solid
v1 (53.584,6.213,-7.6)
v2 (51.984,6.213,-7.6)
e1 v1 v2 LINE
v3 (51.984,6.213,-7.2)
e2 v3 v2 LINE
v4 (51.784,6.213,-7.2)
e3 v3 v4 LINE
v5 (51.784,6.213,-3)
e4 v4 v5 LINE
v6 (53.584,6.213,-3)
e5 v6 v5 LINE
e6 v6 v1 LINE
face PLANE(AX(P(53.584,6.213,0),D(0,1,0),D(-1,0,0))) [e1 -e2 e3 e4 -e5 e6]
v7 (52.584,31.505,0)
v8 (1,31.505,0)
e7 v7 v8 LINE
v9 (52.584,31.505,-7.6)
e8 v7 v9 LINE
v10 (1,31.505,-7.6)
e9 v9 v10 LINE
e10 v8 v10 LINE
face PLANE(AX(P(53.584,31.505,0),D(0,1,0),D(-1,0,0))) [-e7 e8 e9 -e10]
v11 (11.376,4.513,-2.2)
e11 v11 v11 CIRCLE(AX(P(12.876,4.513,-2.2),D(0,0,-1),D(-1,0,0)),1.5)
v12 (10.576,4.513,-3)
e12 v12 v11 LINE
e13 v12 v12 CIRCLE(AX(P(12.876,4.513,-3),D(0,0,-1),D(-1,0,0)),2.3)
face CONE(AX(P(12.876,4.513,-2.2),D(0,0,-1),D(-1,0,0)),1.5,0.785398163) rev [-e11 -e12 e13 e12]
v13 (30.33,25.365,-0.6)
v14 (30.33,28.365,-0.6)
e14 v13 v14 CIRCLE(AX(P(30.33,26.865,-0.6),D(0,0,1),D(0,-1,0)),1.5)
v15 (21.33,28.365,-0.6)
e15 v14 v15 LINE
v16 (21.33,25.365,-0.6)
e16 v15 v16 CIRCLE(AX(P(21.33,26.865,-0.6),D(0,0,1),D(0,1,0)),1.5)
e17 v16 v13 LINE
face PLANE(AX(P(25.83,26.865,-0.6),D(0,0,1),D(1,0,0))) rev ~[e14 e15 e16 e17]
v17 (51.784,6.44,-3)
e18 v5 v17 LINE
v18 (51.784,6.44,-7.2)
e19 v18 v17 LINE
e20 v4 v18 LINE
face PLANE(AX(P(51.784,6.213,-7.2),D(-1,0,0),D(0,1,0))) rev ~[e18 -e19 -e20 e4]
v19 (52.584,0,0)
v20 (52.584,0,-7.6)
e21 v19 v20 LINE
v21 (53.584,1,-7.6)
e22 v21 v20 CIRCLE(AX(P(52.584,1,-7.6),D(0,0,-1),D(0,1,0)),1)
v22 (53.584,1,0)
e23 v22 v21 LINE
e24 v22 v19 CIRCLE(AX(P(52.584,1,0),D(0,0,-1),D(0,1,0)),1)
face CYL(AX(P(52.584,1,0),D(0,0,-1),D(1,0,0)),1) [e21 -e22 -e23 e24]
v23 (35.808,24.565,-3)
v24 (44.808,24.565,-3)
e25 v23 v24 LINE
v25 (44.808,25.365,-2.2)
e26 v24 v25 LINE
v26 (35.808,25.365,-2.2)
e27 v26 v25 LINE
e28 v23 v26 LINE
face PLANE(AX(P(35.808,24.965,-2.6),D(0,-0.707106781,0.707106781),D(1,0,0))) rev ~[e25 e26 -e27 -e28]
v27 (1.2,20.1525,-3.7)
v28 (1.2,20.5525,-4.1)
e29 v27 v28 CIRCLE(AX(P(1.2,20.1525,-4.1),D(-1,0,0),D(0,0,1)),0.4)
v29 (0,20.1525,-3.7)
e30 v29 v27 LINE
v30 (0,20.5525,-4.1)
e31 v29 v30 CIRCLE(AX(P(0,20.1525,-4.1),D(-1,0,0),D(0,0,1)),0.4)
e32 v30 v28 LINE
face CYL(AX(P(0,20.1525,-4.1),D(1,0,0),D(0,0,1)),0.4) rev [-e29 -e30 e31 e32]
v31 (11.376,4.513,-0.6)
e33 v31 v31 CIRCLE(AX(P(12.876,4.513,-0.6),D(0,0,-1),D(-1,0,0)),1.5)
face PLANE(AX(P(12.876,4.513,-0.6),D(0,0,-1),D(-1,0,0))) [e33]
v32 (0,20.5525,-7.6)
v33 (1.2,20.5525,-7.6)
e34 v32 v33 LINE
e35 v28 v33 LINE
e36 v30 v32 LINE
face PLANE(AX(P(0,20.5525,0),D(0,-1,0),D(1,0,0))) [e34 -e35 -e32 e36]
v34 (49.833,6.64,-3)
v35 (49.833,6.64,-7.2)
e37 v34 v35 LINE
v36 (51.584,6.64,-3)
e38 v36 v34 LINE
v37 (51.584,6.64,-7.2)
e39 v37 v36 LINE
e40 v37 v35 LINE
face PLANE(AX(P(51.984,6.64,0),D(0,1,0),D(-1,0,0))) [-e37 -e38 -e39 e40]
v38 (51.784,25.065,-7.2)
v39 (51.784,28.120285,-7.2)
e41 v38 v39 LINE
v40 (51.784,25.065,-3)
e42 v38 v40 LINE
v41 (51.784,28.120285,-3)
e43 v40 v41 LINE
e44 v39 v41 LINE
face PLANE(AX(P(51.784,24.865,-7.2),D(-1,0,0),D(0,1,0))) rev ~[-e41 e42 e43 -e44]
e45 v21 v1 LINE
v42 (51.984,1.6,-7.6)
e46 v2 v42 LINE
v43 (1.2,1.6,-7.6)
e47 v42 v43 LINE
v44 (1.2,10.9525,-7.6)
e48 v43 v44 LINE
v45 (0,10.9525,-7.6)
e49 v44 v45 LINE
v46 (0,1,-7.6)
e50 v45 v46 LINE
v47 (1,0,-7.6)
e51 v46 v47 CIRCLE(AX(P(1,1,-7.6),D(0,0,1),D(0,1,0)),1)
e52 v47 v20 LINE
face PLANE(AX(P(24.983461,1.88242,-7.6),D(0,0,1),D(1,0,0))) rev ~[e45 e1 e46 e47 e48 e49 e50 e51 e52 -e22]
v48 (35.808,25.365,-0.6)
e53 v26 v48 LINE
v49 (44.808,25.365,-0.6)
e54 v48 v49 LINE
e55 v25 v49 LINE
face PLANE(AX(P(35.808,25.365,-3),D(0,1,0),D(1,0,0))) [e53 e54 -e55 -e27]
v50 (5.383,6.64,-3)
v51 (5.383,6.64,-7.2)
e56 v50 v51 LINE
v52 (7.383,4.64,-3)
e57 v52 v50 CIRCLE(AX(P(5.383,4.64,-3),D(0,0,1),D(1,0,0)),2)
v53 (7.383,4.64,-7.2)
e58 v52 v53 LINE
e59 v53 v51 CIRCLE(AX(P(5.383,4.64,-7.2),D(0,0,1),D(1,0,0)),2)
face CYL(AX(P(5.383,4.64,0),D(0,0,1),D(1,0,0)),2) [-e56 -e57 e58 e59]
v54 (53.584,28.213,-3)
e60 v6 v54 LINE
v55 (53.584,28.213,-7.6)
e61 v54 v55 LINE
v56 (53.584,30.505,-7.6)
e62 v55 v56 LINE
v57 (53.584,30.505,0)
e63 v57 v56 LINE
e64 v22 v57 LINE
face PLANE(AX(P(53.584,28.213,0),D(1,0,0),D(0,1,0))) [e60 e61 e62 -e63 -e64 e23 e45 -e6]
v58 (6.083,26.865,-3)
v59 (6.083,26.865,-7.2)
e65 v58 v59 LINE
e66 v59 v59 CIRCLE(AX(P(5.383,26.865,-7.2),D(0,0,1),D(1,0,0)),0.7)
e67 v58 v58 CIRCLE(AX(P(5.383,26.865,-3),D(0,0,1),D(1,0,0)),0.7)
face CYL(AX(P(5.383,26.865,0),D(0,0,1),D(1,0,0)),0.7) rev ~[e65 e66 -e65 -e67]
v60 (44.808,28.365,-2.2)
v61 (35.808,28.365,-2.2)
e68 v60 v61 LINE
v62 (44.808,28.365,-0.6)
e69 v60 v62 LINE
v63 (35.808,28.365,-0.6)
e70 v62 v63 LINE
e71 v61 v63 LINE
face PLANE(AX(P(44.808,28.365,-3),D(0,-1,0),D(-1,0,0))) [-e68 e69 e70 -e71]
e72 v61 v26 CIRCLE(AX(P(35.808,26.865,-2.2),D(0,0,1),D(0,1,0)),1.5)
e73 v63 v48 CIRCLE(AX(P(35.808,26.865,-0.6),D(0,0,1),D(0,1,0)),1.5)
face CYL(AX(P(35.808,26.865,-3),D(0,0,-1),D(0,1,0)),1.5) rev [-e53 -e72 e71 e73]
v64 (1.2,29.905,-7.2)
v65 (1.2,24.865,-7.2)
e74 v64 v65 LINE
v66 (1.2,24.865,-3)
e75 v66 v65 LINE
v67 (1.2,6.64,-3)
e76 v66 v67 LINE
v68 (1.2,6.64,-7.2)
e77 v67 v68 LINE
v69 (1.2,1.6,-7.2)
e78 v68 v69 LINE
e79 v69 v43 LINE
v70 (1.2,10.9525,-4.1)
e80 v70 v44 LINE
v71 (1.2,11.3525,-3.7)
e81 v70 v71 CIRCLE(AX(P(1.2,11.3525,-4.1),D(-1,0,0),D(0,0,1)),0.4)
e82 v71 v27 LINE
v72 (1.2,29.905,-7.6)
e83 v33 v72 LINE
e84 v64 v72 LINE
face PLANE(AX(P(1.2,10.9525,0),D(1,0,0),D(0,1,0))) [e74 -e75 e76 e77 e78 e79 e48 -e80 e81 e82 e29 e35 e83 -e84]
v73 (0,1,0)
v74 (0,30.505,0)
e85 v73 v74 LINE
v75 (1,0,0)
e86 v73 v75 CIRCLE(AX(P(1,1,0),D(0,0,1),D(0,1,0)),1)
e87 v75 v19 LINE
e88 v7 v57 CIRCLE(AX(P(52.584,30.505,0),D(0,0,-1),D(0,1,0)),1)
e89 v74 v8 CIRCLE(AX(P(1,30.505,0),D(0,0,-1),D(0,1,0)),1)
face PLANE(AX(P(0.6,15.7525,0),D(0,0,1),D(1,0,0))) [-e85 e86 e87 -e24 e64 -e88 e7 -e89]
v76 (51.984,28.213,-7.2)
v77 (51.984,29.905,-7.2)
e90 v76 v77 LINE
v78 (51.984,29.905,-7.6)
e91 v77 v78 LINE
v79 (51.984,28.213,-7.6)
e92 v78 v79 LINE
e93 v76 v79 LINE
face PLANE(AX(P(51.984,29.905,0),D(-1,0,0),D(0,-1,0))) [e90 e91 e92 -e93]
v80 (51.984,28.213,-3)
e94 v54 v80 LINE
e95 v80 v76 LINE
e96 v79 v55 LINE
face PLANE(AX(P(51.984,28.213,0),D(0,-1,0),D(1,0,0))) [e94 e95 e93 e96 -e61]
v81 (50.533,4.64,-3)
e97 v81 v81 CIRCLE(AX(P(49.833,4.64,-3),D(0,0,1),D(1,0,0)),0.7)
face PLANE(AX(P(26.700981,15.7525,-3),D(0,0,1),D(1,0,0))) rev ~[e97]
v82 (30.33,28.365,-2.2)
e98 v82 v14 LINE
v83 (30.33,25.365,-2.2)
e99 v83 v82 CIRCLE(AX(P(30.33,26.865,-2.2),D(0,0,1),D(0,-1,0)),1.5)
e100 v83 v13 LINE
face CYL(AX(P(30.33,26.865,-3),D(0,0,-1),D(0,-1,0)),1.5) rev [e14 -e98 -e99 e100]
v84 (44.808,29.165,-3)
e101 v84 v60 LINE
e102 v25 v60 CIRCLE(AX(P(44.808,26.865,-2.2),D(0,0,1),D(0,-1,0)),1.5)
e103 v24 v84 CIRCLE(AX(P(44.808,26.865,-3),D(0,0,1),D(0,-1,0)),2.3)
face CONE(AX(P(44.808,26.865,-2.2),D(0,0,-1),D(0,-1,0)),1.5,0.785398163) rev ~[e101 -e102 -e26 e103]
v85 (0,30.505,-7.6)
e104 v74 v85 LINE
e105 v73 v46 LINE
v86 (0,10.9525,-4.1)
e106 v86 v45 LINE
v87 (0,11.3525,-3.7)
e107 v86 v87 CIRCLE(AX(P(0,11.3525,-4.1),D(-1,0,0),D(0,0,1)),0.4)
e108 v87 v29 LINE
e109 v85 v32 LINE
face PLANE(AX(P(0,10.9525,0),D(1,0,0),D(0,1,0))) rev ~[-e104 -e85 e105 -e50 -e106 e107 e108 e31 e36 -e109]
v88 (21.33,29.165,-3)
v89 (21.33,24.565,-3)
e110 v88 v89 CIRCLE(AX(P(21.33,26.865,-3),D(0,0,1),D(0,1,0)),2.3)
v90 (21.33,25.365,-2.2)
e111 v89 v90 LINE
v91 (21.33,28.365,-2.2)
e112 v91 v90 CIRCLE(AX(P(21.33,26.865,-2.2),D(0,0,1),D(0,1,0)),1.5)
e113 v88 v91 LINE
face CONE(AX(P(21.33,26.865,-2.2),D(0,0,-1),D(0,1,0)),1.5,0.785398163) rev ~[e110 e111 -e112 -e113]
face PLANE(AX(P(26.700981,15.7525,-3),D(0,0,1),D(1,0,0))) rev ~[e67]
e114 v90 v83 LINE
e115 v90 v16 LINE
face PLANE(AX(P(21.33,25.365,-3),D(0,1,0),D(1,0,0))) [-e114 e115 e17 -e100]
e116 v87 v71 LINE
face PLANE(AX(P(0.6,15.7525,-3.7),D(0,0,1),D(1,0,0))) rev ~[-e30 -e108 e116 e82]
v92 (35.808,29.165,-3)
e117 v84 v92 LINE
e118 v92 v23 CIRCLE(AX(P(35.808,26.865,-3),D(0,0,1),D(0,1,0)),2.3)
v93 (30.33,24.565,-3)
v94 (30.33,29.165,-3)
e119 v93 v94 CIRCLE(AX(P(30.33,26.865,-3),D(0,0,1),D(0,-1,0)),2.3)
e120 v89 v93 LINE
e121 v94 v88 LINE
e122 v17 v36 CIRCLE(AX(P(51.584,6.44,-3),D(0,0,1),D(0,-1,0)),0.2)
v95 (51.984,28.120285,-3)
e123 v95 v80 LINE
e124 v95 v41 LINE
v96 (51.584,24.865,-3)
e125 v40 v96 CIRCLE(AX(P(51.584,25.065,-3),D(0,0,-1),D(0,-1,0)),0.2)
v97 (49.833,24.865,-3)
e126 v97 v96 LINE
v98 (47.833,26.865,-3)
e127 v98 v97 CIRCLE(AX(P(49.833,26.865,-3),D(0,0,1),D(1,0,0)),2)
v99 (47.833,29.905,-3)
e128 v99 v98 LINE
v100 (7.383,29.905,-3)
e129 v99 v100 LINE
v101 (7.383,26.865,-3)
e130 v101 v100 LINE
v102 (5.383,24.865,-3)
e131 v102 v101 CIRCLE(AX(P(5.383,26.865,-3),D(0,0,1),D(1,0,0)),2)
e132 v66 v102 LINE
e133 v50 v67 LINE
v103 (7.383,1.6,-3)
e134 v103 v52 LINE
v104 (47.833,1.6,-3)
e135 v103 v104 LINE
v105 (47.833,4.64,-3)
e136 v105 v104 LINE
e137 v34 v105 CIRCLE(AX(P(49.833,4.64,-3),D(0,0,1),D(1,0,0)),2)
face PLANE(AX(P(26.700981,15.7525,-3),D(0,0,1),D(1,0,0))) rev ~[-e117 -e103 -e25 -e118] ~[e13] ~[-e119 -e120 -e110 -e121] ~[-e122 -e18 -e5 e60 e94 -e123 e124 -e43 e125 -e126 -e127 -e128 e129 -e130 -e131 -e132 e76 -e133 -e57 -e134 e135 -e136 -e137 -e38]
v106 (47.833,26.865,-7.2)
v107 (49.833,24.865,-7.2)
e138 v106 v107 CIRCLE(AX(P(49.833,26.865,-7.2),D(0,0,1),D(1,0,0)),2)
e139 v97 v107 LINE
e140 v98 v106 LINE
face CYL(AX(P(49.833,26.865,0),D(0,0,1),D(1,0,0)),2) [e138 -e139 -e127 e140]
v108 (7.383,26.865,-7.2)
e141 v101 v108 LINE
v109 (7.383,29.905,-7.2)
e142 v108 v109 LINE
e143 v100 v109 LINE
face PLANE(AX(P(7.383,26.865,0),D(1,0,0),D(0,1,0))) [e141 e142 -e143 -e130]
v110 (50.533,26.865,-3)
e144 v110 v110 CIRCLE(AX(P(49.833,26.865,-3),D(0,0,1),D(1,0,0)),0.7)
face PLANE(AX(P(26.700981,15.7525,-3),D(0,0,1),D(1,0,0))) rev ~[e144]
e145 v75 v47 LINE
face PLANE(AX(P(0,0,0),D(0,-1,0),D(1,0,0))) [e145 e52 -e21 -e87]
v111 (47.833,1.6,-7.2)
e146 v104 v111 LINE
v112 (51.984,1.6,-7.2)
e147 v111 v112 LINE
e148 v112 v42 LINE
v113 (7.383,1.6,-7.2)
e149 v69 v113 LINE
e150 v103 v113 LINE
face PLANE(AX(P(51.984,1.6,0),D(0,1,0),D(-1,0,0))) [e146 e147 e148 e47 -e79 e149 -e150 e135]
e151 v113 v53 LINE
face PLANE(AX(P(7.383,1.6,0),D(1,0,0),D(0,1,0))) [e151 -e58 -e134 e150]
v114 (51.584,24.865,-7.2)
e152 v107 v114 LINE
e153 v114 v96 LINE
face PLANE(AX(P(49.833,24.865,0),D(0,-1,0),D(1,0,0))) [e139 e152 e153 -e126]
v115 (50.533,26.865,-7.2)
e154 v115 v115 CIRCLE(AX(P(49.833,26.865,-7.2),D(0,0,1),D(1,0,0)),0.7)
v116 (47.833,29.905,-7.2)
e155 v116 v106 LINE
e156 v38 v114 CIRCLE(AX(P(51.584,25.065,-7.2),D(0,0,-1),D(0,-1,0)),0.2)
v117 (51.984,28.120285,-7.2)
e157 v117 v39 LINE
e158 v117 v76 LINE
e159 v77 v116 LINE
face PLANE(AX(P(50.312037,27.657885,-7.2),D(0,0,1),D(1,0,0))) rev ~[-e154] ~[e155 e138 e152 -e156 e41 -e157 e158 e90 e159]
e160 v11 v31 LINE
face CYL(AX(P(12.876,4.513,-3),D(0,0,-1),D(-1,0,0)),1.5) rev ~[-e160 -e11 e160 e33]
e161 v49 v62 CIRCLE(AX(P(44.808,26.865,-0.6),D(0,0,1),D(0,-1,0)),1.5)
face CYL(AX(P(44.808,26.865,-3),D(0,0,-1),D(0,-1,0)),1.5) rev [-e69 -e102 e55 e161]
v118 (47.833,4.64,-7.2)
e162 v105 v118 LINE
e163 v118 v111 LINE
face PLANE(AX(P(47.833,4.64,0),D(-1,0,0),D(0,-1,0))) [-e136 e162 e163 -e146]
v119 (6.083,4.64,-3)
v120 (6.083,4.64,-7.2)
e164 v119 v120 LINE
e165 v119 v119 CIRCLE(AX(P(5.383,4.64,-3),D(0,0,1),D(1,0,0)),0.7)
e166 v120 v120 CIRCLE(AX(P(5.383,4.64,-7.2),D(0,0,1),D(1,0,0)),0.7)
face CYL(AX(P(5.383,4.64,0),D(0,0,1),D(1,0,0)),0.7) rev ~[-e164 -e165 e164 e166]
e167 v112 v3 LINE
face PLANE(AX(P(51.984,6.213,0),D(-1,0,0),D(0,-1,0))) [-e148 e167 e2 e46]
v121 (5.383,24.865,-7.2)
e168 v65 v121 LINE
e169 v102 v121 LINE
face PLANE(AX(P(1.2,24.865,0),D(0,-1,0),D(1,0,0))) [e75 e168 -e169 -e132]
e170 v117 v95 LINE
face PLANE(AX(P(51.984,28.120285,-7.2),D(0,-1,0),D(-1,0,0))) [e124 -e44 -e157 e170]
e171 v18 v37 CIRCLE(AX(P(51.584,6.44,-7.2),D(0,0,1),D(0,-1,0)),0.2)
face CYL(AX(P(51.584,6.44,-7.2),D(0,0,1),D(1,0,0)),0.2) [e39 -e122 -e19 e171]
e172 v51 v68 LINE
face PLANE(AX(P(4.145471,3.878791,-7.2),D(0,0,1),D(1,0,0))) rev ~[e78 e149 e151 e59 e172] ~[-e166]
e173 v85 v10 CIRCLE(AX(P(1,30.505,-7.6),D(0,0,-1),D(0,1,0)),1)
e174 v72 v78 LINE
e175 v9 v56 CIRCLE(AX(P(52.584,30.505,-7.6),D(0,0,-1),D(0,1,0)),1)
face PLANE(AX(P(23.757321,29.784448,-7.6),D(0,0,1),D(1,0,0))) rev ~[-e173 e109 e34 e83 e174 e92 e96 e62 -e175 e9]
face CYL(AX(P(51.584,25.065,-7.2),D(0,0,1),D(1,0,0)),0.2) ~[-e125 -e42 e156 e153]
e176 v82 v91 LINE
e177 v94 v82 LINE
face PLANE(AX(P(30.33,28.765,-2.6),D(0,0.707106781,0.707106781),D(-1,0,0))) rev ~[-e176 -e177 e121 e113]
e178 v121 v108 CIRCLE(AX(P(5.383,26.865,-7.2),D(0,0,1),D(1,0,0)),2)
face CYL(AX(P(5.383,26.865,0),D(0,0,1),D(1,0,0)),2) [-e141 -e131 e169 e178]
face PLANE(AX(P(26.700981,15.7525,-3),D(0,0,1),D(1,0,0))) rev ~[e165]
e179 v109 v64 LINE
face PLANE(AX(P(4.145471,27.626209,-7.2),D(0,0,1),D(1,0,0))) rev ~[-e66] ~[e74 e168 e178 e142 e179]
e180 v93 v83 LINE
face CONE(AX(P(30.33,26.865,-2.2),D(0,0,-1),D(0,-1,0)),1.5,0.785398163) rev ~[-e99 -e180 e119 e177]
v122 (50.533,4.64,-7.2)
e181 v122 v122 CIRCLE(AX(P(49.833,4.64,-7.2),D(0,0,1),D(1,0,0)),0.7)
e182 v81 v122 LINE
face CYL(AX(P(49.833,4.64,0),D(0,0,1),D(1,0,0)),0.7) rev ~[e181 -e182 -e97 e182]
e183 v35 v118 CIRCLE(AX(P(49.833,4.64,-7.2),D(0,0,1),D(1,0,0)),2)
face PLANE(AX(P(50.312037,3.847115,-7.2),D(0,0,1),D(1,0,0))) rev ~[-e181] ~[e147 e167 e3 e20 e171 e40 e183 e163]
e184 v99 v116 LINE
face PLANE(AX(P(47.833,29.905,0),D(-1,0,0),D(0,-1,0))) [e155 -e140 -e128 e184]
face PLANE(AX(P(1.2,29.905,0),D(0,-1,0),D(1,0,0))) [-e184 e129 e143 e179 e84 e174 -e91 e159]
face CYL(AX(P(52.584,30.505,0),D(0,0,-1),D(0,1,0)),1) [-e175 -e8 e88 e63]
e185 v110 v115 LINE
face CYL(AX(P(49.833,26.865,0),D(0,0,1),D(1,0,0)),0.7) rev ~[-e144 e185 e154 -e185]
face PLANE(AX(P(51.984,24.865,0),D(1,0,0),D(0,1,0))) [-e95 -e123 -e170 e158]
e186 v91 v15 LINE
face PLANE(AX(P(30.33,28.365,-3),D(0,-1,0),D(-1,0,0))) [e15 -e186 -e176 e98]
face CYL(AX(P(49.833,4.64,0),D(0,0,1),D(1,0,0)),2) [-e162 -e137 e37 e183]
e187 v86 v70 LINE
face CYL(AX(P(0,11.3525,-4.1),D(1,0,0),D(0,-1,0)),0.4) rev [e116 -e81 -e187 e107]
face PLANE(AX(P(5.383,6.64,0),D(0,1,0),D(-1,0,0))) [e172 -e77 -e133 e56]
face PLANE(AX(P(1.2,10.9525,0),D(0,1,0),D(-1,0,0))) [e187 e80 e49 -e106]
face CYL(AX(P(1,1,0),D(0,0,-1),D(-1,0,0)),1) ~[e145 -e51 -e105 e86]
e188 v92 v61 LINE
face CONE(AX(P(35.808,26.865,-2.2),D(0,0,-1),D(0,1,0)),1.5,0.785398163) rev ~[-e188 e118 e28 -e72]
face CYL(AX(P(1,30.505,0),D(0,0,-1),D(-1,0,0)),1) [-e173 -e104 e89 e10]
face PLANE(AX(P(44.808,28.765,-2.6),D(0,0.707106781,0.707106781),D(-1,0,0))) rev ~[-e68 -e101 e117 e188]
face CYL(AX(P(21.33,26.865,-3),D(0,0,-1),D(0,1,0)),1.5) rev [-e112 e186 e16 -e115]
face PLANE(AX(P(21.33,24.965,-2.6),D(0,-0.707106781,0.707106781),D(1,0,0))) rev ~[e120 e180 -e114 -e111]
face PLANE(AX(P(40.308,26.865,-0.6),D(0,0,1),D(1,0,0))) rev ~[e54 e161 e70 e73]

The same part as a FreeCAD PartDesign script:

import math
import FreeCAD as App
import Part
import Sketcher
from FreeCAD import Vector
Q = App.Units.Quantity


def edges_at(feature, points):
    """Names of the edges that pass closest to the given points."""
    edges = feature.Shape.Edges
    near = lambda p: min(range(len(edges)), key=lambda i: edges[i].distToShape(Part.Vertex(*p))[0])
    return sorted({f"Edge{near(p) + 1}" for p in points})

doc = App.newDocument("Part")
body = doc.addObject("PartDesign::Body", "Body")

# Sketch on XY plane
sketch1 = body.newObject("Sketcher::SketchObject", "Sketch")
sketch1.AttachmentSupport = (doc.getObject("XY_Plane"), [""])
sketch1.MapMode = "FlatFace"
sketch1.addGeometry([
    Part.LineSegment(Vector(51.984, 6.213, 0), Vector(53.584, 6.213, 0)),  # 0
    Part.LineSegment(Vector(53.584, 6.213, 0), Vector(53.584, 28.213, 0)),  # 1
    Part.LineSegment(Vector(53.584, 28.213, 0), Vector(51.984, 28.213, 0)),  # 2
    Part.LineSegment(Vector(51.984, 28.213, 0), Vector(51.984, 29.905, 0)),  # 3
    Part.LineSegment(Vector(51.984, 29.905, 0), Vector(1.2, 29.905, 0)),  # 4
    Part.LineSegment(Vector(1.2, 29.905, 0), Vector(1.2, 1.6, 0)),  # 5
    Part.LineSegment(Vector(1.2, 1.6, 0), Vector(51.984, 1.6, 0)),  # 6
    Part.LineSegment(Vector(51.984, 1.6, 0), Vector(51.984, 6.213, 0)),  # 7
], False)
sketch1.addConstraint([
    Sketcher.Constraint("Coincident", 0, 2, 1, 1),
    Sketcher.Constraint("Coincident", 1, 2, 2, 1),
    Sketcher.Constraint("Coincident", 2, 2, 3, 1),
    Sketcher.Constraint("Coincident", 3, 2, 4, 1),
    Sketcher.Constraint("Coincident", 4, 2, 5, 1),
    Sketcher.Constraint("Coincident", 5, 2, 6, 1),
    Sketcher.Constraint("Coincident", 6, 2, 7, 1),
    Sketcher.Constraint("Coincident", 7, 2, 0, 1),
    Sketcher.Constraint("Horizontal", 0),
    Sketcher.Constraint("Vertical", 1),
    Sketcher.Constraint("Horizontal", 2),
    Sketcher.Constraint("Vertical", 3),
    Sketcher.Constraint("Horizontal", 4),
    Sketcher.Constraint("Vertical", 5),
    Sketcher.Constraint("Horizontal", 6),
    Sketcher.Constraint("Vertical", 7),
    Sketcher.Constraint("Vertical", 3, 2, 6, 2),
    Sketcher.Constraint("DistanceY", 1, 1, 1, 2, Q("22 mm")),
    Sketcher.Constraint("DistanceX", 0, 1, 0, 2, Q("1.6 mm")),
    Sketcher.Constraint("DistanceX", -1, 1, 4, 2, Q("1.2 mm")),
    Sketcher.Constraint("DistanceY", -1, 1, 5, 2, Q("1.6 mm")),
    Sketcher.Constraint("DistanceX", 4, 2, 4, 1, Q("50.784 mm")),
    Sketcher.Constraint("DistanceY", 3, 1, 3, 2, Q("1.692 mm")),
    Sketcher.Constraint("DistanceY", 5, 2, 5, 1, Q("28.305 mm")),
])
pad1 = body.newObject("PartDesign::Pad", "Pad")
pad1.Profile = sketch1
pad1.Length = 3
pad1.Reversed = True

# Sketch on XY plane
sketch2 = body.newObject("Sketcher::SketchObject", "Sketch001")
sketch2.AttachmentSupport = (doc.getObject("XY_Plane"), [""])
sketch2.MapMode = "FlatFace"
sketch2.addGeometry([
    Part.LineSegment(Vector(0, 31.505, 0), Vector(0, 20.5525, 0)),  # 0
    Part.LineSegment(Vector(0, 20.5525, 0), Vector(1.2, 20.5525, 0)),  # 1
    Part.LineSegment(Vector(1.2, 20.5525, 0), Vector(1.2, 29.905, 0)),  # 2
    Part.LineSegment(Vector(1.2, 29.905, 0), Vector(51.984, 29.905, 0)),  # 3
    Part.LineSegment(Vector(51.984, 29.905, 0), Vector(51.984, 28.213, 0)),  # 4
    Part.LineSegment(Vector(51.984, 28.213, 0), Vector(53.584, 28.213, 0)),  # 5
    Part.LineSegment(Vector(53.584, 28.213, 0), Vector(53.584, 31.505, 0)),  # 6
    Part.LineSegment(Vector(53.584, 31.505, 0), Vector(0, 31.505, 0)),  # 7
    Part.LineSegment(Vector(0, 10.9525, 0), Vector(0, 0, 0)),  # 8
    Part.LineSegment(Vector(0, 0, 0), Vector(53.584, 0, 0)),  # 9
    Part.LineSegment(Vector(53.584, 0, 0), Vector(53.584, 6.213, 0)),  # 10
    Part.LineSegment(Vector(53.584, 6.213, 0), Vector(51.984, 6.213, 0)),  # 11
    Part.LineSegment(Vector(51.984, 6.213, 0), Vector(51.984, 1.6, 0)),  # 12
    Part.LineSegment(Vector(51.984, 1.6, 0), Vector(1.2, 1.6, 0)),  # 13
    Part.LineSegment(Vector(1.2, 1.6, 0), Vector(1.2, 10.9525, 0)),  # 14
    Part.LineSegment(Vector(1.2, 10.9525, 0), Vector(0, 10.9525, 0)),  # 15
], False)
sketch2.addConstraint([
    Sketcher.Constraint("Coincident", 0, 2, 1, 1),
    Sketcher.Constraint("Coincident", 1, 2, 2, 1),
    Sketcher.Constraint("Coincident", 2, 2, 3, 1),
    Sketcher.Constraint("Coincident", 3, 2, 4, 1),
    Sketcher.Constraint("Coincident", 4, 2, 5, 1),
    Sketcher.Constraint("Coincident", 5, 2, 6, 1),
    Sketcher.Constraint("Coincident", 6, 2, 7, 1),
    Sketcher.Constraint("Coincident", 7, 2, 0, 1),
    Sketcher.Constraint("Coincident", 8, 2, 9, 1),
    Sketcher.Constraint("Coincident", 9, 2, 10, 1),
    Sketcher.Constraint("Coincident", 10, 2, 11, 1),
    Sketcher.Constraint("Coincident", 11, 2, 12, 1),
    Sketcher.Constraint("Coincident", 12, 2, 13, 1),
    Sketcher.Constraint("Coincident", 13, 2, 14, 1),
    Sketcher.Constraint("Coincident", 14, 2, 15, 1),
    Sketcher.Constraint("Coincident", 15, 2, 8, 1),
    Sketcher.Constraint("Vertical", 0),
    Sketcher.Constraint("Horizontal", 1),
    Sketcher.Constraint("Vertical", 2),
    Sketcher.Constraint("Horizontal", 3),
    Sketcher.Constraint("Vertical", 4),
    Sketcher.Constraint("Horizontal", 5),
    Sketcher.Constraint("Vertical", 6),
    Sketcher.Constraint("Horizontal", 7),
    Sketcher.Constraint("Vertical", 8),
    Sketcher.Constraint("Horizontal", 9),
    Sketcher.Constraint("Vertical", 10),
    Sketcher.Constraint("Horizontal", 11),
    Sketcher.Constraint("Vertical", 12),
    Sketcher.Constraint("Horizontal", 13),
    Sketcher.Constraint("Vertical", 14),
    Sketcher.Constraint("Horizontal", 15),
    Sketcher.Constraint("Coincident", 8, 2, -1, 1),
    Sketcher.Constraint("PointOnObject", 0, 2, -2),
    Sketcher.Constraint("Vertical", 6, 2, 9, 2),
    Sketcher.Constraint("Vertical", 4, 2, 11, 2),
    Sketcher.Constraint("Vertical", 2, 2, 13, 2),
    Sketcher.Constraint("Equal", 0, 8),
    Sketcher.Constraint("Equal", 2, 14),
    Sketcher.Constraint("DistanceX", 1, 1, 1, 2, Q("1.2 mm")),
    Sketcher.Constraint("DistanceX", 5, 1, 5, 2, Q("1.6 mm")),
    Sketcher.Constraint("DistanceY", 10, 2, 5, 2, Q("22 mm")),
    Sketcher.Constraint("DistanceY", -1, 1, 12, 2, Q("1.6 mm")),
    Sketcher.Constraint("DistanceY", 14, 2, 1, 2, Q("9.6 mm")),
    Sketcher.Constraint("DistanceX", 3, 1, 3, 2, Q("50.784 mm")),
    Sketcher.Constraint("DistanceY", 4, 2, 4, 1, Q("1.692 mm")),
    Sketcher.Constraint("DistanceY", 10, 1, 10, 2, Q("6.213 mm")),
])
pad2 = body.newObject("PartDesign::Pad", "Pad001")
pad2.Profile = sketch2
pad2.Length = 7.6
pad2.Reversed = True

# Sketch on XY plane
sketch3 = body.newObject("Sketcher::SketchObject", "Sketch002")
sketch3.AttachmentSupport = (doc.getObject("XY_Plane"), [""])
sketch3.MapMode = "FlatFace"
sketch3.addGeometry([
    Part.LineSegment(Vector(51.984, 24.865, 0), Vector(51.984, 29.905, 0)),  # 0
    Part.LineSegment(Vector(51.984, 29.905, 0), Vector(47.833, 29.905, 0)),  # 1
    Part.LineSegment(Vector(47.833, 29.905, 0), Vector(47.833, 26.865, 0)),  # 2
    Part.ArcOfCircle(Part.Circle(Vector(49.833, 26.865, 0), Vector(0, 0, 1), 2), math.radians(180), math.radians(270)),  # 3
    Part.LineSegment(Vector(49.833, 24.865, 0), Vector(51.984, 24.865, 0)),  # 4
    Part.Circle(Vector(49.833, 26.865, 0), Vector(0, 0, 1), 0.7),  # 5
    Part.LineSegment(Vector(1.2, 29.905, 0), Vector(1.2, 24.865, 0)),  # 6
    Part.LineSegment(Vector(1.2, 24.865, 0), Vector(5.383, 24.865, 0)),  # 7
    Part.ArcOfCircle(Part.Circle(Vector(5.383, 26.865, 0), Vector(0, 0, 1), 2), math.radians(-90), math.radians(0)),  # 8
    Part.LineSegment(Vector(7.383, 26.865, 0), Vector(7.383, 29.905, 0)),  # 9
    Part.LineSegment(Vector(7.383, 29.905, 0), Vector(1.2, 29.905, 0)),  # 10
    Part.Circle(Vector(5.383, 26.865, 0), Vector(0, 0, 1), 0.7),  # 11
    Part.LineSegment(Vector(51.984, 1.6, 0), Vector(51.984, 6.64, 0)),  # 12
    Part.LineSegment(Vector(51.984, 6.64, 0), Vector(49.833, 6.64, 0)),  # 13
    Part.ArcOfCircle(Part.Circle(Vector(49.833, 4.64, 0), Vector(0, 0, 1), 2), math.radians(90), math.radians(180)),  # 14
    Part.LineSegment(Vector(47.833, 4.64, 0), Vector(47.833, 1.6, 0)),  # 15
    Part.LineSegment(Vector(47.833, 1.6, 0), Vector(51.984, 1.6, 0)),  # 16
    Part.Circle(Vector(49.833, 4.64, 0), Vector(0, 0, 1), 0.7),  # 17
    Part.LineSegment(Vector(5.383, 6.64, 0), Vector(1.2, 6.64, 0)),  # 18
    Part.LineSegment(Vector(1.2, 6.64, 0), Vector(1.2, 1.6, 0)),  # 19
    Part.LineSegment(Vector(1.2, 1.6, 0), Vector(7.383, 1.6, 0)),  # 20
    Part.LineSegment(Vector(7.383, 1.6, 0), Vector(7.383, 4.64, 0)),  # 21
    Part.ArcOfCircle(Part.Circle(Vector(5.383, 4.64, 0), Vector(0, 0, 1), 2), math.radians(0), math.radians(90)),  # 22
    Part.Circle(Vector(5.383, 4.64, 0), Vector(0, 0, 1), 0.7),  # 23
], False)
sketch3.addConstraint([
    Sketcher.Constraint("Coincident", 0, 2, 1, 1),
    Sketcher.Constraint("Coincident", 1, 2, 2, 1),
    Sketcher.Constraint("Tangent", 2, 2, 3, 1),
    Sketcher.Constraint("Tangent", 3, 2, 4, 1),
    Sketcher.Constraint("Coincident", 4, 2, 0, 1),
    Sketcher.Constraint("Coincident", 6, 2, 7, 1),
    Sketcher.Constraint("Tangent", 7, 2, 8, 1),
    Sketcher.Constraint("Tangent", 8, 2, 9, 1),
    Sketcher.Constraint("Coincident", 9, 2, 10, 1),
    Sketcher.Constraint("Coincident", 10, 2, 6, 1),
    Sketcher.Constraint("Coincident", 12, 2, 13, 1),
    Sketcher.Constraint("Tangent", 13, 2, 14, 1),
    Sketcher.Constraint("Tangent", 14, 2, 15, 1),
    Sketcher.Constraint("Coincident", 15, 2, 16, 1),
    Sketcher.Constraint("Coincident", 16, 2, 12, 1),
    Sketcher.Constraint("Coincident", 18, 2, 19, 1),
    Sketcher.Constraint("Coincident", 19, 2, 20, 1),
    Sketcher.Constraint("Coincident", 20, 2, 21, 1),
    Sketcher.Constraint("Tangent", 21, 2, 22, 1),
    Sketcher.Constraint("Tangent", 22, 2, 18, 1),
    Sketcher.Constraint("Vertical", 0),
    Sketcher.Constraint("Horizontal", 1),
    Sketcher.Constraint("Vertical", 2),
    Sketcher.Constraint("Horizontal", 4),
    Sketcher.Constraint("Vertical", 6),
    Sketcher.Constraint("Horizontal", 7),
    Sketcher.Constraint("Vertical", 9),
    Sketcher.Constraint("Horizontal", 10),
    Sketcher.Constraint("Vertical", 12),
    Sketcher.Constraint("Horizontal", 13),
    Sketcher.Constraint("Vertical", 15),
    Sketcher.Constraint("Horizontal", 16),
    Sketcher.Constraint("Horizontal", 18),
    Sketcher.Constraint("Vertical", 19),
    Sketcher.Constraint("Horizontal", 20),
    Sketcher.Constraint("Vertical", 21),
    Sketcher.Constraint("Coincident", 5, 3, 3, 3),
    Sketcher.Constraint("Coincident", 11, 3, 8, 3),
    Sketcher.Constraint("Coincident", 17, 3, 14, 3),
    Sketcher.Constraint("Coincident", 23, 3, 22, 3),
    Sketcher.Constraint("Equal", 3, 8),
    Sketcher.Constraint("Equal", 5, 11),
    Sketcher.Constraint("Equal", 8, 14),
    Sketcher.Constraint("Equal", 11, 17),
    Sketcher.Constraint("Equal", 14, 22),
    Sketcher.Constraint("Equal", 17, 23),
    Sketcher.Constraint("Horizontal", 5, 3, 8, 3),
    Sketcher.Constraint("Horizontal", 17, 3, 22, 3),
    Sketcher.Constraint("Horizontal", 1, 2, 9, 2),
    Sketcher.Constraint("Horizontal", 16, 2, 19, 2),
    Sketcher.Constraint("Vertical", 5, 3, 14, 3),
    Sketcher.Constraint("Vertical", 11, 3, 22, 3),
    Sketcher.Constraint("Vertical", 4, 2, 12, 2),
    Sketcher.Constraint("Vertical", 10, 2, 18, 2),
    Sketcher.Constraint("Equal", 6, 12),
    Sketcher.Constraint("Radius", 3, Q("2 mm")),
    Sketcher.Constraint("Diameter", 5, Q("1.4 mm")),
    Sketcher.Constraint("DistanceY", 0, 1, 0, 2, Q("5.04 mm")),
    Sketcher.Constraint("DistanceX", -1, 1, 6, 2, Q("1.2 mm")),
    Sketcher.Constraint("DistanceY", -1, 1, 15, 2, Q("1.6 mm")),
    Sketcher.Constraint("DistanceX", 1, 2, 1, 1, Q("4.151 mm")),
    Sketcher.Constraint("DistanceX", 7, 1, 7, 2, Q("4.183 mm")),
    Sketcher.Constraint("DistanceX", 8, 3, 3, 3, Q("44.45 mm")),
    Sketcher.Constraint("DistanceY", -1, 1, 3, 3, Q("26.865 mm")),
])
pad3 = body.newObject("PartDesign::Pad", "Pad002")
pad3.Profile = sketch3
pad3.Length = 7.2
pad3.Reversed = True

# Sketch on XY plane
sketch4 = body.newObject("Sketcher::SketchObject", "Sketch003")
sketch4.AttachmentSupport = (doc.getObject("XY_Plane"), [""])
sketch4.MapMode = "FlatFace"
sketch4.addGeometry([
    Part.LineSegment(Vector(0, 20.5525, 0), Vector(0, 10.9525, 0)),
    Part.LineSegment(Vector(0, 10.9525, 0), Vector(1.2, 10.9525, 0)),
    Part.LineSegment(Vector(1.2, 10.9525, 0), Vector(1.2, 20.5525, 0)),
    Part.LineSegment(Vector(1.2, 20.5525, 0), Vector(0, 20.5525, 0)),
], False)
sketch4.addConstraint([
    Sketcher.Constraint("Coincident", 0, 2, 1, 1),
    Sketcher.Constraint("Coincident", 1, 2, 2, 1),
    Sketcher.Constraint("Coincident", 2, 2, 3, 1),
    Sketcher.Constraint("Coincident", 3, 2, 0, 1),
    Sketcher.Constraint("Vertical", 0),
    Sketcher.Constraint("Horizontal", 1),
    Sketcher.Constraint("Vertical", 2),
    Sketcher.Constraint("Horizontal", 3),
    Sketcher.Constraint("PointOnObject", 0, 2, -2),
    Sketcher.Constraint("DistanceX", 1, 1, 1, 2, Q("1.2 mm")),
    Sketcher.Constraint("DistanceY", 0, 2, 0, 1, Q("9.6 mm")),
    Sketcher.Constraint("DistanceY", -1, 1, 0, 2, Q("10.9525 mm")),
])
pad4 = body.newObject("PartDesign::Pad", "Pad003")
pad4.Profile = sketch4
pad4.Length = 3.7
pad4.Reversed = True
doc.recompute()

fillet = body.newObject("PartDesign::Fillet", "Fillet")
fillet.Base = (pad4, edges_at(pad4, [
    (0, 31.505, -3.8),
    (53.584, 31.505, -3.8),
    (53.584, 0, -3.8),
    (0, 0, -3.8),
]))
fillet.Radius = 1

# Sketch on XY plane
sketch5 = body.newObject("Sketcher::SketchObject", "Sketch004")
sketch5.AttachmentSupport = (doc.getObject("XY_Plane"), [""])
sketch5.MapMode = "FlatFace"
sketch5.AttachmentOffset = App.Placement(Vector(0, 0, -3), App.Rotation())
sketch5.addGeometry([
    Part.Circle(Vector(12.876, 4.513, 0), Vector(0, 0, 1), 1.5),  # 0
    Part.LineSegment(Vector(35.808, 28.365, 0), Vector(44.808, 28.365, 0)),  # 1
    Part.ArcOfCircle(Part.Circle(Vector(44.808, 26.865, 0), Vector(0, 0, 1), 1.5), math.radians(-90), math.radians(90)),  # 2
    Part.LineSegment(Vector(44.808, 25.365, 0), Vector(35.808, 25.365, 0)),  # 3
    Part.ArcOfCircle(Part.Circle(Vector(35.808, 26.865, 0), Vector(0, 0, 1), 1.5), math.radians(90), math.radians(270)),  # 4
    Part.LineSegment(Vector(21.33, 28.365, 0), Vector(30.33, 28.365, 0)),  # 5
    Part.ArcOfCircle(Part.Circle(Vector(30.33, 26.865, 0), Vector(0, 0, 1), 1.5), math.radians(-90), math.radians(90)),  # 6
    Part.LineSegment(Vector(30.33, 25.365, 0), Vector(21.33, 25.365, 0)),  # 7
    Part.ArcOfCircle(Part.Circle(Vector(21.33, 26.865, 0), Vector(0, 0, 1), 1.5), math.radians(90), math.radians(270)),  # 8
], False)
sketch5.addConstraint([
    Sketcher.Constraint("Tangent", 1, 2, 2, 2),
    Sketcher.Constraint("Tangent", 2, 1, 3, 1),
    Sketcher.Constraint("Tangent", 3, 2, 4, 2),
    Sketcher.Constraint("Tangent", 4, 1, 1, 1),
    Sketcher.Constraint("Tangent", 5, 2, 6, 2),
    Sketcher.Constraint("Tangent", 6, 1, 7, 1),
    Sketcher.Constraint("Tangent", 7, 2, 8, 2),
    Sketcher.Constraint("Tangent", 8, 1, 5, 1),
    Sketcher.Constraint("Horizontal", 1),
    Sketcher.Constraint("Horizontal", 3),
    Sketcher.Constraint("Horizontal", 5),
    Sketcher.Constraint("Horizontal", 7),
    Sketcher.Constraint("Equal", 0, 2),
    Sketcher.Constraint("Equal", 4, 6),
    Sketcher.Constraint("Horizontal", 4, 3, 6, 3),
    Sketcher.Constraint("Equal", 3, 5),
    Sketcher.Constraint("Diameter", 0, Q("3 mm")),
    Sketcher.Constraint("DistanceX", 1, 1, 1, 2, Q("9 mm")),
    Sketcher.Constraint("DistanceX", -1, 1, 6, 3, Q("30.33 mm")),
    Sketcher.Constraint("DistanceX", -1, 1, 0, 3, Q("12.876 mm")),
    Sketcher.Constraint("DistanceY", -1, 1, 0, 3, Q("4.513 mm")),
    Sketcher.Constraint("DistanceX", -1, 1, 2, 3, Q("44.808 mm")),
    Sketcher.Constraint("DistanceY", -1, 1, 2, 3, Q("26.865 mm")),
])
pocket1 = body.newObject("PartDesign::Pocket", "Pocket")
pocket1.Profile = sketch5
pocket1.Length = 2.4
pocket1.Reversed = True
doc.recompute()

chamfer = body.newObject("PartDesign::Chamfer", "Chamfer")
chamfer.Base = (pocket1, edges_at(pocket1, [
    (46.308, 26.865, -3),
    (40.308, 25.365, -3),
    (34.308, 26.865, -3),
    (40.308, 28.365, -3),
    (31.83, 26.865, -3),
    (25.83, 25.365, -3),
    (19.83, 26.865, -3),
    (25.83, 28.365, -3),
    (14.376, 4.513, -3),
]))
chamfer.Size = 0.8
doc.recompute()

fillet2 = body.newObject("PartDesign::Fillet", "Fillet001")
fillet2.Base = (chamfer, edges_at(chamfer, [(0.6, 20.552, -3.7), (0.6, 10.953, -3.7)]))
fillet2.Radius = 0.4

# Sketch on XY plane
sketch6 = body.newObject("Sketcher::SketchObject", "Sketch005")
sketch6.AttachmentSupport = (doc.getObject("XY_Plane"), [""])
sketch6.MapMode = "FlatFace"
sketch6.AttachmentOffset = App.Placement(Vector(0, 0, -7.2), App.Rotation())
sketch6.addGeometry([
    Part.LineSegment(Vector(51.984, 28.120285, 0), Vector(51.984, 24.865, 0)),  # 0
    Part.LineSegment(Vector(51.984, 24.865, 0), Vector(51.784, 24.865, 0)),  # 1
    Part.LineSegment(Vector(51.784, 24.865, 0), Vector(51.784, 28.120285, 0)),  # 2
    Part.LineSegment(Vector(51.784, 28.120285, 0), Vector(51.984, 28.120285, 0)),  # 3
    Part.LineSegment(Vector(51.984, 6.64, 0), Vector(51.984, 6.213, 0)),  # 4
    Part.LineSegment(Vector(51.984, 6.213, 0), Vector(51.784, 6.213, 0)),  # 5
    Part.LineSegment(Vector(51.784, 6.213, 0), Vector(51.784, 6.64, 0)),  # 6
    Part.LineSegment(Vector(51.784, 6.64, 0), Vector(51.984, 6.64, 0)),  # 7
], False)
sketch6.addConstraint([
    Sketcher.Constraint("Coincident", 0, 2, 1, 1),
    Sketcher.Constraint("Coincident", 1, 2, 2, 1),
    Sketcher.Constraint("Coincident", 2, 2, 3, 1),
    Sketcher.Constraint("Coincident", 3, 2, 0, 1),
    Sketcher.Constraint("Coincident", 4, 2, 5, 1),
    Sketcher.Constraint("Coincident", 5, 2, 6, 1),
    Sketcher.Constraint("Coincident", 6, 2, 7, 1),
    Sketcher.Constraint("Coincident", 7, 2, 4, 1),
    Sketcher.Constraint("Vertical", 0),
    Sketcher.Constraint("Horizontal", 1),
    Sketcher.Constraint("Vertical", 2),
    Sketcher.Constraint("Horizontal", 3),
    Sketcher.Constraint("Vertical", 4),
    Sketcher.Constraint("Horizontal", 5),
    Sketcher.Constraint("Vertical", 6),
    Sketcher.Constraint("Horizontal", 7),
    Sketcher.Constraint("Vertical", 3, 2, 4, 2),
    Sketcher.Constraint("Vertical", 2, 2, 5, 2),
    Sketcher.Constraint("DistanceX", 1, 2, 1, 1, Q("0.2 mm")),
    Sketcher.Constraint("DistanceY", 4, 2, 4, 1, Q("0.427 mm")),
    Sketcher.Constraint("DistanceY", -1, 1, 6, 2, Q("6.64 mm")),
    Sketcher.Constraint("DistanceX", -1, 1, 0, 2, Q("51.984 mm")),
    Sketcher.Constraint("DistanceY", -1, 1, 0, 2, Q("24.865 mm")),
    Sketcher.Constraint("DistanceY", 0, 2, 0, 1, Q("3.255285 mm")),
])
pocket2 = body.newObject("PartDesign::Pocket", "Pocket001")
pocket2.Profile = sketch6
pocket2.Length = 4.2
pocket2.Reversed = True
doc.recompute()

fillet3 = body.newObject("PartDesign::Fillet", "Fillet002")
fillet3.Base = (pocket2, edges_at(pocket2, [(51.784, 24.865, -5.1), (51.784, 6.64, -5.1)]))
fillet3.Radius = 0.2

doc.recompute()
